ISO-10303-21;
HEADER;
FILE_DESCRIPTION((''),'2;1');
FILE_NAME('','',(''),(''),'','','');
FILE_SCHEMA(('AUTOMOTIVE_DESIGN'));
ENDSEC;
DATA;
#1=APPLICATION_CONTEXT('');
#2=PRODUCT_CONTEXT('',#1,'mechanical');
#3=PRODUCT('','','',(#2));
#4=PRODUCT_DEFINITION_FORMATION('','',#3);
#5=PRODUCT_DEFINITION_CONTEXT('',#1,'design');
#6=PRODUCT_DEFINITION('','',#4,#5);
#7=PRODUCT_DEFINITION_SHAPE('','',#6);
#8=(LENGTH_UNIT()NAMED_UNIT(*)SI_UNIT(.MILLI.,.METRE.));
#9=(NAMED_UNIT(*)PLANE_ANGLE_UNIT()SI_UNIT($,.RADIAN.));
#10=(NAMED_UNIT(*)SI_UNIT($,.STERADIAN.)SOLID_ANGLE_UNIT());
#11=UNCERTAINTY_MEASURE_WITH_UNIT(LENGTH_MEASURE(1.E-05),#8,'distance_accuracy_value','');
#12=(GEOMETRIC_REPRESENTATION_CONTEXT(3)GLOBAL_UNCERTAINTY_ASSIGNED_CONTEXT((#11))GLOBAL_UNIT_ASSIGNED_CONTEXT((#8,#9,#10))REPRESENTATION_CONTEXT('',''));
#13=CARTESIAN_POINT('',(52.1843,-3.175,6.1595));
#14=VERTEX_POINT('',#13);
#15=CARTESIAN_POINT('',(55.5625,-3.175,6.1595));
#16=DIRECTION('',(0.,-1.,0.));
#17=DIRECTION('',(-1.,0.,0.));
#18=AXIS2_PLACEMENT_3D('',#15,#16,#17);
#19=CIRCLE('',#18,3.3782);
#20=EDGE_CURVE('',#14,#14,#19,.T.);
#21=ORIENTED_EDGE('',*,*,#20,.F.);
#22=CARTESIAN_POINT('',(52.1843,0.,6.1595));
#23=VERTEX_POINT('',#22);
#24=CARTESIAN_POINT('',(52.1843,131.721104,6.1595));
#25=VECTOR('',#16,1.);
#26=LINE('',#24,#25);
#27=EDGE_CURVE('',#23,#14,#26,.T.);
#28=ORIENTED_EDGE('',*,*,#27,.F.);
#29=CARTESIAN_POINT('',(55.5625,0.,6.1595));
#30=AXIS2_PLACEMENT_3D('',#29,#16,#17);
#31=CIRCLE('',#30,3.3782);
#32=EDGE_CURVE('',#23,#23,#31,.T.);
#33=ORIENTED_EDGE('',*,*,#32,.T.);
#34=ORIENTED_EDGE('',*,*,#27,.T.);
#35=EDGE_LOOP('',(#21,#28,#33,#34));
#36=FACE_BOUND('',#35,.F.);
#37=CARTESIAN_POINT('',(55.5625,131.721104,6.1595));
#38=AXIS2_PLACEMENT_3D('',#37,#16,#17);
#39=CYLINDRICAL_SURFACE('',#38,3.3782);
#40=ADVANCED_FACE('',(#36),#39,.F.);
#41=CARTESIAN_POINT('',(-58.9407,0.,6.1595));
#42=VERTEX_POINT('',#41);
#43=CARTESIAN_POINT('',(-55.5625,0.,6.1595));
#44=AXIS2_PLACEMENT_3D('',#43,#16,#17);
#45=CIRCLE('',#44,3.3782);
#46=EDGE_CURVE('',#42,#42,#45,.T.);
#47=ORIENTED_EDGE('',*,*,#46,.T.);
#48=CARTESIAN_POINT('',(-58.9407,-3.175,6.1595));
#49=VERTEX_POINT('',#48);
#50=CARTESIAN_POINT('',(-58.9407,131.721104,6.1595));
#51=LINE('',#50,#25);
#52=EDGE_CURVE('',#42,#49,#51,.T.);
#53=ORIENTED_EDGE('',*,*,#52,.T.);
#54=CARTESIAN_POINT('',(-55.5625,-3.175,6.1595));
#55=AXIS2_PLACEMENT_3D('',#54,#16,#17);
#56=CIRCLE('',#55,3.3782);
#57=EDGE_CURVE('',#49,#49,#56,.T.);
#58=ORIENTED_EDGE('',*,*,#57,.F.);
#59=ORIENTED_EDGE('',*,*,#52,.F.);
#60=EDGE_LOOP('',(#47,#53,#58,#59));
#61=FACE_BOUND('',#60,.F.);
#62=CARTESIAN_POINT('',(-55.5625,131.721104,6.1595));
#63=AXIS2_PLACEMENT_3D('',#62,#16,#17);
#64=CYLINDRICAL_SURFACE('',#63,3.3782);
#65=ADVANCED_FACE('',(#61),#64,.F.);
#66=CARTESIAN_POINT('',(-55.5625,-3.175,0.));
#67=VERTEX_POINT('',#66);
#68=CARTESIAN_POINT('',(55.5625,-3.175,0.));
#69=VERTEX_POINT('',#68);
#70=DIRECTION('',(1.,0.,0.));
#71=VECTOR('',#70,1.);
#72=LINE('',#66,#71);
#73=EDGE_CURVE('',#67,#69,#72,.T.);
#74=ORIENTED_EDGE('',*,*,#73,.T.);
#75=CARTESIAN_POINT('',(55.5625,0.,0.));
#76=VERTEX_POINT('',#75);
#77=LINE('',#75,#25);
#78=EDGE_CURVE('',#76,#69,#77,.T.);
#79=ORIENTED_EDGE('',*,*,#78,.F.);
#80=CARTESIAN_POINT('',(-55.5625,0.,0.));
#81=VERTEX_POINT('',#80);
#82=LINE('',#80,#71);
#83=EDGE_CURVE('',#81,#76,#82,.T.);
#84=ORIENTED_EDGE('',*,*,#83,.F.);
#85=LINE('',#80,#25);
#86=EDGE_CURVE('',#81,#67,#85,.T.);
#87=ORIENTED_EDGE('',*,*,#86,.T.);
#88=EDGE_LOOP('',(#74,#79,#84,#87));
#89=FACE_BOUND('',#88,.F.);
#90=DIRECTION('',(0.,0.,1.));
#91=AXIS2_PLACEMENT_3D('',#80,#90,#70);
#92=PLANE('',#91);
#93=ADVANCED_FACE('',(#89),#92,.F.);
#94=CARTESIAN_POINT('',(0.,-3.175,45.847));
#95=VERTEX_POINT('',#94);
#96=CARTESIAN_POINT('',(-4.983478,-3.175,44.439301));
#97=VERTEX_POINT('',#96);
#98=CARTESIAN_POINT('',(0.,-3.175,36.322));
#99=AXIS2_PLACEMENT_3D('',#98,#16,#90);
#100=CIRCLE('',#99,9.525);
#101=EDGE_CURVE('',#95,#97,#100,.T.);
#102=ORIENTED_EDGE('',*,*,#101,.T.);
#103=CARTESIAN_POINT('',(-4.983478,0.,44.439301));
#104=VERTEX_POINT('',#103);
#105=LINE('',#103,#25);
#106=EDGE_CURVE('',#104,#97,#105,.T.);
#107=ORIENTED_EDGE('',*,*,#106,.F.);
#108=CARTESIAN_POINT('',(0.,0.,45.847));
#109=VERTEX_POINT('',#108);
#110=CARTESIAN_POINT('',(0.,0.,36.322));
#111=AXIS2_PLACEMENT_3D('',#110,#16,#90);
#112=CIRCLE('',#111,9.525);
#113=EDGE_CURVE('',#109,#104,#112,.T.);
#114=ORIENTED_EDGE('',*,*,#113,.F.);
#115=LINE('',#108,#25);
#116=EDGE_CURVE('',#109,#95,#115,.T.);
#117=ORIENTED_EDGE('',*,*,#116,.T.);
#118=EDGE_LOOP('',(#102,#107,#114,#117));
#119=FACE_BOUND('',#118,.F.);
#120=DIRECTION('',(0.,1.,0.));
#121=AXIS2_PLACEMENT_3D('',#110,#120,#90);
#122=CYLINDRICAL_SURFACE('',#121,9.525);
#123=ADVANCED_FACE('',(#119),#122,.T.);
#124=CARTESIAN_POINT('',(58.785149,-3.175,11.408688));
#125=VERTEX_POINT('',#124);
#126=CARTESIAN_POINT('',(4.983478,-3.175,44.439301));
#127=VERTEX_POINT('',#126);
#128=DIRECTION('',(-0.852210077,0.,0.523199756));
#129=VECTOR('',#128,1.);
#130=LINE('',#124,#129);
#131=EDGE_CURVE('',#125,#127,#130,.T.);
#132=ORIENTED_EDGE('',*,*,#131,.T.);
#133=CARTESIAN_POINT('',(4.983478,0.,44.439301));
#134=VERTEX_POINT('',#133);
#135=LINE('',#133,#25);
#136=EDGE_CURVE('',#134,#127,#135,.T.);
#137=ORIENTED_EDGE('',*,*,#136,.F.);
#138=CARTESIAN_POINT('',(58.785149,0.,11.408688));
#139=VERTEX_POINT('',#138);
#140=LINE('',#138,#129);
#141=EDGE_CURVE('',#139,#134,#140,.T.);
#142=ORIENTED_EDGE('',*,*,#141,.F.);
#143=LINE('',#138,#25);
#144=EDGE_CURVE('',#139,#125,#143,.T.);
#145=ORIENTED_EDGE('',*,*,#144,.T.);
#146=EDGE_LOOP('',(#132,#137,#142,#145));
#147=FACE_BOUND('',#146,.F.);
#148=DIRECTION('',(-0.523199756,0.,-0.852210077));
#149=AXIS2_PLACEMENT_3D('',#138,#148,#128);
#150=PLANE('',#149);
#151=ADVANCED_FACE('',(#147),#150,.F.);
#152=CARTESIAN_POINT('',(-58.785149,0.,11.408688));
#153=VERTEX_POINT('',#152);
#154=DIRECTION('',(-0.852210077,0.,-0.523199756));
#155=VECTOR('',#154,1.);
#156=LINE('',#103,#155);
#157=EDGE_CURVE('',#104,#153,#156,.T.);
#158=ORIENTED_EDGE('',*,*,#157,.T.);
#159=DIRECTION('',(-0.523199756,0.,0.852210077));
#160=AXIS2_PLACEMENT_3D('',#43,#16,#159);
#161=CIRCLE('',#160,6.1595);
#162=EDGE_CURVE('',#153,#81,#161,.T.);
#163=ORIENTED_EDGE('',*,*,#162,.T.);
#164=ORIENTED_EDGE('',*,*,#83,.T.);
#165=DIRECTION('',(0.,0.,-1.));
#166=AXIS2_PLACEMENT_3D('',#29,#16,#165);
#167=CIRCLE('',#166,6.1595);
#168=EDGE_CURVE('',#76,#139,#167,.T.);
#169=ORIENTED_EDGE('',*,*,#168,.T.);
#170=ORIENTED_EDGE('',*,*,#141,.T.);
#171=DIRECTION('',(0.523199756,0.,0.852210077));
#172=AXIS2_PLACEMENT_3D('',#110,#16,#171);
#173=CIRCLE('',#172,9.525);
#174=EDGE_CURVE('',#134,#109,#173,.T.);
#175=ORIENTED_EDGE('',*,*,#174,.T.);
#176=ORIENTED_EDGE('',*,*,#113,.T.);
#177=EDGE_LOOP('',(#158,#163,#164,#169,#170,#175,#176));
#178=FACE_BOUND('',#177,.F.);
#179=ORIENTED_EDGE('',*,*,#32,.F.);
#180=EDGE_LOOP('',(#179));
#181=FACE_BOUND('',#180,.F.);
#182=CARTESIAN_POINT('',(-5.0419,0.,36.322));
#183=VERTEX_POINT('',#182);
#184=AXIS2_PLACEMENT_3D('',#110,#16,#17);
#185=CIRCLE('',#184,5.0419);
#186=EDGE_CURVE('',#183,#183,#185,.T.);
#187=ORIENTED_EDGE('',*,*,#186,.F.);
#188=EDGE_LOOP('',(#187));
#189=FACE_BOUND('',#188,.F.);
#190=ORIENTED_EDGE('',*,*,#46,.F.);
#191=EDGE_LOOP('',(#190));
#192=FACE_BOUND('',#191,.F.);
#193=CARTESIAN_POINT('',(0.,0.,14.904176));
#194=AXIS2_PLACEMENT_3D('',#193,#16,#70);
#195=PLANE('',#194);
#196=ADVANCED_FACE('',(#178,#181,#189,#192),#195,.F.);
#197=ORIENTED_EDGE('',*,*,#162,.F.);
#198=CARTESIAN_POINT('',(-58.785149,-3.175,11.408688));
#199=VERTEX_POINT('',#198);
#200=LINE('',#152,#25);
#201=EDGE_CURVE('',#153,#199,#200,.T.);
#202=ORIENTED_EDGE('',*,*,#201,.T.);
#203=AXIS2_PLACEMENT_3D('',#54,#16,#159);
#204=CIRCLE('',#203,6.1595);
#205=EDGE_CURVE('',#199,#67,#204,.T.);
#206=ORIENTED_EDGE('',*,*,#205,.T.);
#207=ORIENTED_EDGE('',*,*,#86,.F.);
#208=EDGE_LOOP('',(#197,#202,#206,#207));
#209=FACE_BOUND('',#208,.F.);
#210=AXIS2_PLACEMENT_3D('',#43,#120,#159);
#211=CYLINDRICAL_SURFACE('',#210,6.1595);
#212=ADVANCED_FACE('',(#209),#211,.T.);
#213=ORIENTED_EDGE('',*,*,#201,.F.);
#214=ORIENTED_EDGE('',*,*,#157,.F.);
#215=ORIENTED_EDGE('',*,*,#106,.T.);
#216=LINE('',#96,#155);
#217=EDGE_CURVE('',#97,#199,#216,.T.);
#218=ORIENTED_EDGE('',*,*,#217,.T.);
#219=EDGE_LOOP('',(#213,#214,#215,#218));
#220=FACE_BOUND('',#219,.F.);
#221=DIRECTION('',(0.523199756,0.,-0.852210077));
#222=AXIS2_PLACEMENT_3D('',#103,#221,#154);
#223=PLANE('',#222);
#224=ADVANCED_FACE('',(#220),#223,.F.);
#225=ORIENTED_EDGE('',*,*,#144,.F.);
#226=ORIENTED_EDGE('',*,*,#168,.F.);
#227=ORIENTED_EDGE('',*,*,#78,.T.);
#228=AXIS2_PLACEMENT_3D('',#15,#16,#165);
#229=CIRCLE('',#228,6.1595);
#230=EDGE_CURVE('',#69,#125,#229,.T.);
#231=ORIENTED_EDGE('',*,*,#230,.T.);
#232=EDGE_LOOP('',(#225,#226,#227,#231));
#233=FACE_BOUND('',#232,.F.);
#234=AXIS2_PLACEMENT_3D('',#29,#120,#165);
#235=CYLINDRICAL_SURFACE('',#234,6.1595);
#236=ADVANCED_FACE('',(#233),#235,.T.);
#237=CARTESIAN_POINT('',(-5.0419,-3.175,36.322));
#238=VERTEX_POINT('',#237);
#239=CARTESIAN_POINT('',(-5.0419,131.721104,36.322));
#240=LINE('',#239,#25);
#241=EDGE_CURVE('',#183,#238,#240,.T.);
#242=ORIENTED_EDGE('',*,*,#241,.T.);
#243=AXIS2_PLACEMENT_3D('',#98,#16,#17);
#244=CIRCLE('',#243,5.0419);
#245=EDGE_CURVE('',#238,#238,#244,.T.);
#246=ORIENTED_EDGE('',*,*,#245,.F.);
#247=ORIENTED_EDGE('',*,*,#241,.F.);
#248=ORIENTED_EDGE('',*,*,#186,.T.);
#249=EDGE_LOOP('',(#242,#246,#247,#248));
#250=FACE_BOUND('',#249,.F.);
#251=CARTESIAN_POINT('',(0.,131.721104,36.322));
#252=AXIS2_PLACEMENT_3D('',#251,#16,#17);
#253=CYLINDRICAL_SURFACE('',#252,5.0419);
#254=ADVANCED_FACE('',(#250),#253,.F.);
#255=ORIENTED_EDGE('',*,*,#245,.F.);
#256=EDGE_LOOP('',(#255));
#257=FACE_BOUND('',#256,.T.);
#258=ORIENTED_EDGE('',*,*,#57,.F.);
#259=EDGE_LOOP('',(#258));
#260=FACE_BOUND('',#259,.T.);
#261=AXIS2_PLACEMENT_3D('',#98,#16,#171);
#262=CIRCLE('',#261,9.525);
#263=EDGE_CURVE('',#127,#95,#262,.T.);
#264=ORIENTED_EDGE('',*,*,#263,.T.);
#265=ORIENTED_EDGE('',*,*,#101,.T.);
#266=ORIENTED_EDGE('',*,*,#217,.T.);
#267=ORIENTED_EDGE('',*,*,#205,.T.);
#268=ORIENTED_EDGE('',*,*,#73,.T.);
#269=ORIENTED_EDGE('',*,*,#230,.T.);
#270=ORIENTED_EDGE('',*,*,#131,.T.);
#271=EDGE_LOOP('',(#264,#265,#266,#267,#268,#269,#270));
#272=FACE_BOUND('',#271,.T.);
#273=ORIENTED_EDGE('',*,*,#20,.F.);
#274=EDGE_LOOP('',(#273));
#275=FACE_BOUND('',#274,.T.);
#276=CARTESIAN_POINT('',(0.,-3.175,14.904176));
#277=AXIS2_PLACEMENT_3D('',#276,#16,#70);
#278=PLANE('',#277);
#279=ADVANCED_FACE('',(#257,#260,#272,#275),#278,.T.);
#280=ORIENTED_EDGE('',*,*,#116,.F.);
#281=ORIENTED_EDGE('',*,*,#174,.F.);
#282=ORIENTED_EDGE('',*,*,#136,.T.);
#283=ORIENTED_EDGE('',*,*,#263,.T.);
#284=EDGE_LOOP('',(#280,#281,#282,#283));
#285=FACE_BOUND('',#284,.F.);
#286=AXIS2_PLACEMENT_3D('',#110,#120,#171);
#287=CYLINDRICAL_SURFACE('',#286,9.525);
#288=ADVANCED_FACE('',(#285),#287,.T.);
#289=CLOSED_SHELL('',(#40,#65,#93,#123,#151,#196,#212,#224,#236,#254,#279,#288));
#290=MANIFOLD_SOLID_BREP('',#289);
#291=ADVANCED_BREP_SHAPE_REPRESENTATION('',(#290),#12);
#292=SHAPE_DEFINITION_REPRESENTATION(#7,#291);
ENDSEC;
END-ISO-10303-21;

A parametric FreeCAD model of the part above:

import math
import FreeCAD as App
import Part
import Sketcher

V = App.Vector
Q = App.Units.Quantity

doc = App.newDocument("Part")
body = doc.addObject("PartDesign::Body", "Body")

sketch1 = body.newObject("Sketcher::SketchObject", "Sketch")
sketch1.AttachmentSupport = (doc.getObject("XZ_Plane"), [""])
sketch1.MapMode = "FlatFace"
sketch1.addGeometry([
    Part.LineSegment(V(-5, 44, 0), V(-59, 11, 0)),
    Part.ArcOfCircle(Part.Circle(V(-56, 6, 0), V(0, 0, 1), 6), math.radians(122), math.radians(270)),
    Part.LineSegment(V(-56, 0, 0), V(56, 0, 0)),
    Part.ArcOfCircle(Part.Circle(V(56, 6, 0), V(0, 0, 1), 6), math.radians(-90), math.radians(58)),
    Part.LineSegment(V(59, 11, 0), V(5, 44, 0)),
    Part.ArcOfCircle(Part.Circle(V(0, 36, 0), V(0, 0, 1), 10), math.radians(58), math.radians(90)),
    Part.ArcOfCircle(Part.Circle(V(0, 36, 0), V(0, 0, 1), 10), math.radians(90), math.radians(122)),
], False)
sketch1.addConstraint([
    Sketcher.Constraint("Tangent", 0, 2, 1, 1),
    Sketcher.Constraint("Tangent", 1, 2, 2, 1),
    Sketcher.Constraint("Tangent", 2, 2, 3, 1),
    Sketcher.Constraint("Tangent", 3, 2, 4, 1),
    Sketcher.Constraint("Tangent", 4, 2, 5, 1),
    Sketcher.Constraint("Tangent", 5, 2, 6, 1),
    Sketcher.Constraint("Tangent", 6, 2, 0, 1),
    Sketcher.Constraint("Horizontal", 2),
    Sketcher.Constraint("Equal", 1, 3),
    Sketcher.Constraint("Equal", 5, 6),
    Sketcher.Constraint("Symmetric", 1, 2, 2, 2, -1, 1),
    Sketcher.Constraint("PointOnObject", 5, 3, -2),
    Sketcher.Constraint("PointOnObject", 5, 2, -2),
    Sketcher.Constraint("Radius", 5, Q("0.375 in")),
    Sketcher.Constraint("Radius", 1, Q("0.2425 in")),
    Sketcher.Constraint("DistanceX", 2, 1, 2, 2, Q("4.375 in")),
    Sketcher.Constraint("DistanceY", -1, 1, 5, 3, Q("1.43 in")),
])
pad1 = body.newObject("PartDesign::Pad", "Pad")
pad1.Profile = sketch1
pad1.Length = Q("0.125 in")

sketch2 = body.newObject("Sketcher::SketchObject", "Sketch001")
sketch2.AttachmentSupport = (doc.getObject("XZ_Plane"), [""])
sketch2.MapMode = "FlatFace"
sketch2.addGeometry(Part.Circle(V(0, 36, 0), V(0, 0, 1), 5), False)
sketch2.addConstraint([
    Sketcher.Constraint("PointOnObject", 0, 3, -2),
    Sketcher.Constraint("Diameter", 0, Q("0.397 in")),
    Sketcher.Constraint("DistanceY", -1, 1, 0, 3, Q("1.43 in")),
])
doc.recompute()
hole = body.newObject("PartDesign::Hole", "Hole")
hole.Profile = sketch2
hole.ThreadType = "None"
hole.Diameter = Q("0.397 in")
hole.DepthType = "ThroughAll"
hole.Reversed = True

sketch3 = body.newObject("Sketcher::SketchObject", "Sketch002")
sketch3.AttachmentSupport = (doc.getObject("XZ_Plane"), [""])
sketch3.MapMode = "FlatFace"
sketch3.addGeometry([
    Part.Circle(V(55.6, 6.2, 0), V(0, 0, 1), 3.4),
    Part.Circle(V(-55.6, 6.2, 0), V(0, 0, 1), 3.4),
], False)
sketch3.addConstraint([
    Sketcher.Constraint("Equal", 0, 1),
    Sketcher.Constraint("Symmetric", 0, 3, 1, 3, -2),
    Sketcher.Constraint("Diameter", 0, Q("0.266 in")),
    Sketcher.Constraint("DistanceX", -1, 1, 0, 3, Q("2.1875 in")),
    Sketcher.Constraint("DistanceY", -1, 1, 0, 3, Q("0.2425 in")),
])
doc.recompute()
hole2 = body.newObject("PartDesign::Hole", "Hole001")
hole2.Profile = sketch3
hole2.ThreadType = "None"
hole2.Diameter = Q("0.266 in")
hole2.DepthType = "ThroughAll"
hole2.Reversed = True

doc.recompute()
